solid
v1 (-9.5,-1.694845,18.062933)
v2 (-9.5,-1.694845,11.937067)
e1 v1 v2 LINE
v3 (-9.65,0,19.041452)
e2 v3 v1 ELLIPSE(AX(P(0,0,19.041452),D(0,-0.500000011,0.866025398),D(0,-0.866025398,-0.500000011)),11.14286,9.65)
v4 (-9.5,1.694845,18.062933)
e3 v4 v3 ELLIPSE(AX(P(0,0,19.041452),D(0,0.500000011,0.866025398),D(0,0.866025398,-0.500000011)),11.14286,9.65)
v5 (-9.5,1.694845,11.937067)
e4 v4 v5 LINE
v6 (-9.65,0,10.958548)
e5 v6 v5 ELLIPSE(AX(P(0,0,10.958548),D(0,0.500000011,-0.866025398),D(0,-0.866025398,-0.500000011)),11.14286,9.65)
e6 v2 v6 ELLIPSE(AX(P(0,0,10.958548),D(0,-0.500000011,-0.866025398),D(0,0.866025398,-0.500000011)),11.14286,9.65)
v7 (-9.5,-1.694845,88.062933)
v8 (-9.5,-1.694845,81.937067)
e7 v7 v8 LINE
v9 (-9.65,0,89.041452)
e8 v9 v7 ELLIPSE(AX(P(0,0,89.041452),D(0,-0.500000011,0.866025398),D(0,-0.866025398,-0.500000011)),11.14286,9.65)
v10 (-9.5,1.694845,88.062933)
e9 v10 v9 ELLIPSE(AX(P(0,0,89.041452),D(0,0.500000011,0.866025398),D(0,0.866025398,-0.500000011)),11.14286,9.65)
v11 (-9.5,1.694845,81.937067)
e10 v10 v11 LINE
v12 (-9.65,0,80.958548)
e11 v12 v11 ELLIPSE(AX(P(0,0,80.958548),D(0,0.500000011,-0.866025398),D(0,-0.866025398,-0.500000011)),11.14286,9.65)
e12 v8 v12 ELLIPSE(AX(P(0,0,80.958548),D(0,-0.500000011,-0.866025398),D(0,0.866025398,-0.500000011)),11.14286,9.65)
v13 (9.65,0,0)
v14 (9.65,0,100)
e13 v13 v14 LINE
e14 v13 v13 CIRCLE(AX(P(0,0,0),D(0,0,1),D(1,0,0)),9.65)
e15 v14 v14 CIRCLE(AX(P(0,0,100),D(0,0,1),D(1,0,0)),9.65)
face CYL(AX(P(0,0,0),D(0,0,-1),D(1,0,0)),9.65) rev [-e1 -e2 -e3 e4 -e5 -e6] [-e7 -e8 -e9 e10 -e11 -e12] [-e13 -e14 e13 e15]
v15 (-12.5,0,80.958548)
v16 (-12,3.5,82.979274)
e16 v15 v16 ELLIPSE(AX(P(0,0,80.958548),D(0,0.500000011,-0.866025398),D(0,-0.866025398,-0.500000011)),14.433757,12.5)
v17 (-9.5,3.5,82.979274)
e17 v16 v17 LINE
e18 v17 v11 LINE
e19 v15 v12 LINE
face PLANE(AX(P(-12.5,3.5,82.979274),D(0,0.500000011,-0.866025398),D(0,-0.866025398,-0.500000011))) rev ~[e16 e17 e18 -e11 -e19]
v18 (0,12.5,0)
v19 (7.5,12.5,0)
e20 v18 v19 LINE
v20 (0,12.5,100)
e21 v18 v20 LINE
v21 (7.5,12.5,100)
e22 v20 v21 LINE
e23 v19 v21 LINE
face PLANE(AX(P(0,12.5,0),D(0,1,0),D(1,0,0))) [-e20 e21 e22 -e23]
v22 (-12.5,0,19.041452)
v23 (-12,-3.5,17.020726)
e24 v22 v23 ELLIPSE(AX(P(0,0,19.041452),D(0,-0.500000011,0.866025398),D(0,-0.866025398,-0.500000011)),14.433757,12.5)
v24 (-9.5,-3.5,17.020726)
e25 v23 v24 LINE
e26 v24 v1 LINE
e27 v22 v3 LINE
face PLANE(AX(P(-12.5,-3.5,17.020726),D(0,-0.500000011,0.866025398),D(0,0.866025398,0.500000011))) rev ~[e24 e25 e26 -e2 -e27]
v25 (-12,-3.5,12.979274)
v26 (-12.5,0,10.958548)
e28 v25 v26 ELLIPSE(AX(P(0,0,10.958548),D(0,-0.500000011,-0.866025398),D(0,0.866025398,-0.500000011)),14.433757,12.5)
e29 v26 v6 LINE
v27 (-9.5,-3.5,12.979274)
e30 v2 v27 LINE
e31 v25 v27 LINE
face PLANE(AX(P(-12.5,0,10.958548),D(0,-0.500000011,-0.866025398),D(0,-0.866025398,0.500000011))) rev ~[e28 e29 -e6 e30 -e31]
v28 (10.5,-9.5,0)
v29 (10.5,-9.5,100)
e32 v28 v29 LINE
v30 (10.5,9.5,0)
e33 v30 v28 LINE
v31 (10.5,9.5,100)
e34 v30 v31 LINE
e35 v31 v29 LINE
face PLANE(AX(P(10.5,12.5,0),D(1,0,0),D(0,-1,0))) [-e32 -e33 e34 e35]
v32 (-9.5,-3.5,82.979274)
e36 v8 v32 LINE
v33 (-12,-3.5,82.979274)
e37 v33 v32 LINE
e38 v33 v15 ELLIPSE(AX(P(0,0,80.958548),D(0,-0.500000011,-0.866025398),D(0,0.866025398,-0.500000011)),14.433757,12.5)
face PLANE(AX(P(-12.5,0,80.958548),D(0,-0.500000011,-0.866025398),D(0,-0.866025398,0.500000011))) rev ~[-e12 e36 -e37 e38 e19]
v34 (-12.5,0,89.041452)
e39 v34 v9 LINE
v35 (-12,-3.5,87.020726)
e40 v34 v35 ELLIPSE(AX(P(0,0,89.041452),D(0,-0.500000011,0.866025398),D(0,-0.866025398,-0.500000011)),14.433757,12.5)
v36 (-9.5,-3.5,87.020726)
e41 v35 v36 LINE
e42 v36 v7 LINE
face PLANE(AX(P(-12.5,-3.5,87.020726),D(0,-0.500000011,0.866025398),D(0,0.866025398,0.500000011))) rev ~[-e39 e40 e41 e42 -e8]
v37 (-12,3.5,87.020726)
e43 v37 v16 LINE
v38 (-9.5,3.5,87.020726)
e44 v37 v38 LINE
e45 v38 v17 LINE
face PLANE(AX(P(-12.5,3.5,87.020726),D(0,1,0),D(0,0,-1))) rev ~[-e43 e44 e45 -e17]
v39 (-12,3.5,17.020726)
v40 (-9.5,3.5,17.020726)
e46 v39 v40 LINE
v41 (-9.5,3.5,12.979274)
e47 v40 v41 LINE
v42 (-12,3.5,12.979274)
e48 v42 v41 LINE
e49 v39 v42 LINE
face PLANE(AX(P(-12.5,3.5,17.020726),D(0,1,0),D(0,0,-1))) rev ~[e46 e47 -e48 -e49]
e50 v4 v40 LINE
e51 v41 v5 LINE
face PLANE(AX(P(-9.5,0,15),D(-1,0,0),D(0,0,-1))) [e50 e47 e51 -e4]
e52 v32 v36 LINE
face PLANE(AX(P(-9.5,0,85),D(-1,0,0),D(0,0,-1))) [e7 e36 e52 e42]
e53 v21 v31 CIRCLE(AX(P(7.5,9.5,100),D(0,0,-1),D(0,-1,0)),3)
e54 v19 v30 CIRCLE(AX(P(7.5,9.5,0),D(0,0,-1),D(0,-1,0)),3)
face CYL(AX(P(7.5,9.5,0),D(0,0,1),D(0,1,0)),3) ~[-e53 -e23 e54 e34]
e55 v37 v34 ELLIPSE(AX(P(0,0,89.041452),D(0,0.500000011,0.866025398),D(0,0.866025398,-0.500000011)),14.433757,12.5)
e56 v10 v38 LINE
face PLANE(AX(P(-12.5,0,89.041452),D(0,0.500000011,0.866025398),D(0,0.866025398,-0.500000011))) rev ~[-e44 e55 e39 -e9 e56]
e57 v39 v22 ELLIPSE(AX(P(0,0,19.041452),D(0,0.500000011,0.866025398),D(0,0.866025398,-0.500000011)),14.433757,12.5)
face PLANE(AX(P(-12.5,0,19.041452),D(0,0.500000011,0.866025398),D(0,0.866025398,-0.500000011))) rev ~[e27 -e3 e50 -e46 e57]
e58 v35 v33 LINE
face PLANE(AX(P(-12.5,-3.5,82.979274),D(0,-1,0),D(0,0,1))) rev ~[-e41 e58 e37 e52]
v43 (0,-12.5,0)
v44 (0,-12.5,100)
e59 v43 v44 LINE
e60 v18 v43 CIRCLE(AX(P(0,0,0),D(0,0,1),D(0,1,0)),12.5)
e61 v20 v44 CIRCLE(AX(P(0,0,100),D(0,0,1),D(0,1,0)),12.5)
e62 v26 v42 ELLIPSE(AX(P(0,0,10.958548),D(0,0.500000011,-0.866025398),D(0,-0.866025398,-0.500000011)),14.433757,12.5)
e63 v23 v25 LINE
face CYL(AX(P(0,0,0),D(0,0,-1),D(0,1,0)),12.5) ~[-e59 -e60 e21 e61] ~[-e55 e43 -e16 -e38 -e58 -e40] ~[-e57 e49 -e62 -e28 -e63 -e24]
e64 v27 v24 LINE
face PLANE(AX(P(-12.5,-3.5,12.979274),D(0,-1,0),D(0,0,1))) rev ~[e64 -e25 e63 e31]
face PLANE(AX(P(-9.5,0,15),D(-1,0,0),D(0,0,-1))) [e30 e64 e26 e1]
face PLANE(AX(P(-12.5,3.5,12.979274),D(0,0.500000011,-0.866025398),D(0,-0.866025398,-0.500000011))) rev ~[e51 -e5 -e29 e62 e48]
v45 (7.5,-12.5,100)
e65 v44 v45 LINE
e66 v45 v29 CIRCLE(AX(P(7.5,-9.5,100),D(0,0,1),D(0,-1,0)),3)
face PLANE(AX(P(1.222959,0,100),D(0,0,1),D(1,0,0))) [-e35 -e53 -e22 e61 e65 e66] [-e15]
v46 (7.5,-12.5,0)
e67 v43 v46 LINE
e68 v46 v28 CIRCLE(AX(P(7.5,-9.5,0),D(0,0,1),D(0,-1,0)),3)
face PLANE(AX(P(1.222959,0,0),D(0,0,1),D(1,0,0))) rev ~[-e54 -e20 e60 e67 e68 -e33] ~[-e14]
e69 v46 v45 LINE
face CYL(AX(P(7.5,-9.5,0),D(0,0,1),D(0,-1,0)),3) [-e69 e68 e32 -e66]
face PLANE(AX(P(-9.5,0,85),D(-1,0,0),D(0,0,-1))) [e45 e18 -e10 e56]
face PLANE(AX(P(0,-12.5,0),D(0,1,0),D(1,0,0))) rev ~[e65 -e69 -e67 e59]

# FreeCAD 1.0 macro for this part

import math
import FreeCAD as App
import Part
import Sketcher

V = App.Vector
Q = App.Units.Quantity


def edges_at(feature, points):
    """Names of the edges that pass closest to the given points."""
    edges = feature.Shape.Edges
    near = lambda p: min(range(len(edges)), key=lambda i: edges[i].distToShape(Part.Vertex(*p))[0])
    return sorted({f"Edge{near(p) + 1}" for p in points})


def add_polygon(sketch, points):
    """Adds a closed chain of lines whose ends are joined by coincident constraints."""
    first, n = sketch.GeometryCount, len(points)
    for a, b in zip(points, points[1:] + points[:1]):
        sketch.addGeometry(Part.LineSegment(App.Vector(*a, 0), App.Vector(*b, 0)), False)
    for i in range(n):
        sketch.addConstraint(Sketcher.Constraint("Coincident", first + i, 2, first + (i + 1) % n, 1))

doc = App.newDocument("Part")
body = doc.addObject("PartDesign::Body", "Body")

# Sketch on XY plane
sketch1 = doc.addObject("Sketcher::SketchObject", "Sketch")
body.addObject(sketch1)
sketch1.AttachmentSupport = (doc.XY_Plane, [""])
sketch1.MapMode = "FlatFace"
sketch1.addGeometry([
    Part.ArcOfCircle(Part.Circle(V(0, 0, 0), V(0, 0, 1), 12.5), math.radians(90), math.radians(270)),  # 0
    Part.LineSegment(V(0, -12.5, 0), V(10.5, -12.5, 0)),  # 1
    Part.LineSegment(V(10.5, -12.5, 0), V(10.5, 12.5, 0)),  # 2
    Part.LineSegment(V(10.5, 12.5, 0), V(0, 12.5, 0)),  # 3
    Part.Circle(V(0, 0, 0), V(0, 0, 1), 9.65),  # 4
], False)
sketch1.addConstraint([
    Sketcher.Constraint("Tangent", 0, 2, 1, 1),
    Sketcher.Constraint("Coincident", 1, 2, 2, 1),
    Sketcher.Constraint("Coincident", 2, 2, 3, 1),
    Sketcher.Constraint("Tangent", 3, 2, 0, 1),
    Sketcher.Constraint("Horizontal", 1),
    Sketcher.Constraint("Vertical", 2),
    Sketcher.Constraint("Horizontal", 3),
    Sketcher.Constraint("Coincident", 0, 3, -1, 1),
    Sketcher.Constraint("Coincident", 4, 3, -1, 1),
    Sketcher.Constraint("Diameter", 4, 19.3),
    Sketcher.Constraint("Radius", 0, 12.5),
    Sketcher.Constraint("DistanceX", 1, 1, 1, 2, 10.5),
])
pad1 = doc.addObject("PartDesign::Pad", "Pad")
body.addObject(pad1)
pad1.Profile = sketch1
pad1.Length = 100
doc.recompute()

fillet = doc.addObject("PartDesign::Fillet", "Fillet")
body.addObject(fillet)
fillet.Base = (pad1, edges_at(pad1, [(10.5, -12.5, 50), (10.5, 12.5, 50)]))
fillet.Radius = 3

# Sketch on YZ plane
sketch2 = doc.addObject("Sketcher::SketchObject", "Sketch001")
body.addObject(sketch2)
sketch2.AttachmentSupport = (doc.YZ_Plane, [""])
sketch2.MapMode = "FlatFace"
sketch2.AttachmentOffset = App.Placement(V(0, 0, -12.5), App.Rotation())
add_polygon(sketch2, [(3.5, 87.020726), (3.5, 82.979274), (0, 80.958548), (-3.5, 82.979274), (-3.5, 87.020726), (0, 89.041452)])  # lines 0-5
add_polygon(sketch2, [(3.5, 12.979274), (0, 10.958548), (-3.5, 12.979274), (-3.5, 17.020726), (0, 19.041452), (3.5, 17.020726)])  # lines 6-11
sketch2.addConstraint([
    Sketcher.Constraint("Vertical", 0),
    Sketcher.Constraint("Vertical", 3),
    Sketcher.Constraint("Vertical", 8),
    Sketcher.Constraint("Vertical", 11),
    Sketcher.Constraint("Symmetric", 0, 2, 2, 2, -2),
    Sketcher.Constraint("Symmetric", 8, 2, 10, 2, -2),
    Sketcher.Constraint("PointOnObject", 1, 2, -2),
    Sketcher.Constraint("PointOnObject", 4, 2, -2),
    Sketcher.Constraint("PointOnObject", 6, 2, -2),
    Sketcher.Constraint("PointOnObject", 9, 2, -2),
    Sketcher.Constraint("Parallel", 1, 4),
    Sketcher.Constraint("Parallel", 2, 5),
    Sketcher.Constraint("Parallel", 4, 6),
    Sketcher.Constraint("Parallel", 5, 7),
    Sketcher.Constraint("Parallel", 6, 9),
    Sketcher.Constraint("Vertical", 3, 2, 7, 2),
    Sketcher.Constraint("Equal", 3, 8),
    Sketcher.Constraint("Angle", 1, Q("-149.999999 deg")),
    Sketcher.Constraint("DistanceX", 2, 2, 0, 2, 7.0),
    Sketcher.Constraint("DistanceY", 6, 2, 1, 2, 70.0),
    Sketcher.Constraint("DistanceY", 0, 2, 0, 1, 4.041452),
    Sketcher.Constraint("DistanceY", -1, 1, 9, 2, 19.041452),
])
pocket1 = doc.addObject("PartDesign::Pocket", "Pocket")
body.addObject(pocket1)
pocket1.Profile = sketch2
pocket1.Length = 3
pocket1.Reversed = True

doc.recompute()
